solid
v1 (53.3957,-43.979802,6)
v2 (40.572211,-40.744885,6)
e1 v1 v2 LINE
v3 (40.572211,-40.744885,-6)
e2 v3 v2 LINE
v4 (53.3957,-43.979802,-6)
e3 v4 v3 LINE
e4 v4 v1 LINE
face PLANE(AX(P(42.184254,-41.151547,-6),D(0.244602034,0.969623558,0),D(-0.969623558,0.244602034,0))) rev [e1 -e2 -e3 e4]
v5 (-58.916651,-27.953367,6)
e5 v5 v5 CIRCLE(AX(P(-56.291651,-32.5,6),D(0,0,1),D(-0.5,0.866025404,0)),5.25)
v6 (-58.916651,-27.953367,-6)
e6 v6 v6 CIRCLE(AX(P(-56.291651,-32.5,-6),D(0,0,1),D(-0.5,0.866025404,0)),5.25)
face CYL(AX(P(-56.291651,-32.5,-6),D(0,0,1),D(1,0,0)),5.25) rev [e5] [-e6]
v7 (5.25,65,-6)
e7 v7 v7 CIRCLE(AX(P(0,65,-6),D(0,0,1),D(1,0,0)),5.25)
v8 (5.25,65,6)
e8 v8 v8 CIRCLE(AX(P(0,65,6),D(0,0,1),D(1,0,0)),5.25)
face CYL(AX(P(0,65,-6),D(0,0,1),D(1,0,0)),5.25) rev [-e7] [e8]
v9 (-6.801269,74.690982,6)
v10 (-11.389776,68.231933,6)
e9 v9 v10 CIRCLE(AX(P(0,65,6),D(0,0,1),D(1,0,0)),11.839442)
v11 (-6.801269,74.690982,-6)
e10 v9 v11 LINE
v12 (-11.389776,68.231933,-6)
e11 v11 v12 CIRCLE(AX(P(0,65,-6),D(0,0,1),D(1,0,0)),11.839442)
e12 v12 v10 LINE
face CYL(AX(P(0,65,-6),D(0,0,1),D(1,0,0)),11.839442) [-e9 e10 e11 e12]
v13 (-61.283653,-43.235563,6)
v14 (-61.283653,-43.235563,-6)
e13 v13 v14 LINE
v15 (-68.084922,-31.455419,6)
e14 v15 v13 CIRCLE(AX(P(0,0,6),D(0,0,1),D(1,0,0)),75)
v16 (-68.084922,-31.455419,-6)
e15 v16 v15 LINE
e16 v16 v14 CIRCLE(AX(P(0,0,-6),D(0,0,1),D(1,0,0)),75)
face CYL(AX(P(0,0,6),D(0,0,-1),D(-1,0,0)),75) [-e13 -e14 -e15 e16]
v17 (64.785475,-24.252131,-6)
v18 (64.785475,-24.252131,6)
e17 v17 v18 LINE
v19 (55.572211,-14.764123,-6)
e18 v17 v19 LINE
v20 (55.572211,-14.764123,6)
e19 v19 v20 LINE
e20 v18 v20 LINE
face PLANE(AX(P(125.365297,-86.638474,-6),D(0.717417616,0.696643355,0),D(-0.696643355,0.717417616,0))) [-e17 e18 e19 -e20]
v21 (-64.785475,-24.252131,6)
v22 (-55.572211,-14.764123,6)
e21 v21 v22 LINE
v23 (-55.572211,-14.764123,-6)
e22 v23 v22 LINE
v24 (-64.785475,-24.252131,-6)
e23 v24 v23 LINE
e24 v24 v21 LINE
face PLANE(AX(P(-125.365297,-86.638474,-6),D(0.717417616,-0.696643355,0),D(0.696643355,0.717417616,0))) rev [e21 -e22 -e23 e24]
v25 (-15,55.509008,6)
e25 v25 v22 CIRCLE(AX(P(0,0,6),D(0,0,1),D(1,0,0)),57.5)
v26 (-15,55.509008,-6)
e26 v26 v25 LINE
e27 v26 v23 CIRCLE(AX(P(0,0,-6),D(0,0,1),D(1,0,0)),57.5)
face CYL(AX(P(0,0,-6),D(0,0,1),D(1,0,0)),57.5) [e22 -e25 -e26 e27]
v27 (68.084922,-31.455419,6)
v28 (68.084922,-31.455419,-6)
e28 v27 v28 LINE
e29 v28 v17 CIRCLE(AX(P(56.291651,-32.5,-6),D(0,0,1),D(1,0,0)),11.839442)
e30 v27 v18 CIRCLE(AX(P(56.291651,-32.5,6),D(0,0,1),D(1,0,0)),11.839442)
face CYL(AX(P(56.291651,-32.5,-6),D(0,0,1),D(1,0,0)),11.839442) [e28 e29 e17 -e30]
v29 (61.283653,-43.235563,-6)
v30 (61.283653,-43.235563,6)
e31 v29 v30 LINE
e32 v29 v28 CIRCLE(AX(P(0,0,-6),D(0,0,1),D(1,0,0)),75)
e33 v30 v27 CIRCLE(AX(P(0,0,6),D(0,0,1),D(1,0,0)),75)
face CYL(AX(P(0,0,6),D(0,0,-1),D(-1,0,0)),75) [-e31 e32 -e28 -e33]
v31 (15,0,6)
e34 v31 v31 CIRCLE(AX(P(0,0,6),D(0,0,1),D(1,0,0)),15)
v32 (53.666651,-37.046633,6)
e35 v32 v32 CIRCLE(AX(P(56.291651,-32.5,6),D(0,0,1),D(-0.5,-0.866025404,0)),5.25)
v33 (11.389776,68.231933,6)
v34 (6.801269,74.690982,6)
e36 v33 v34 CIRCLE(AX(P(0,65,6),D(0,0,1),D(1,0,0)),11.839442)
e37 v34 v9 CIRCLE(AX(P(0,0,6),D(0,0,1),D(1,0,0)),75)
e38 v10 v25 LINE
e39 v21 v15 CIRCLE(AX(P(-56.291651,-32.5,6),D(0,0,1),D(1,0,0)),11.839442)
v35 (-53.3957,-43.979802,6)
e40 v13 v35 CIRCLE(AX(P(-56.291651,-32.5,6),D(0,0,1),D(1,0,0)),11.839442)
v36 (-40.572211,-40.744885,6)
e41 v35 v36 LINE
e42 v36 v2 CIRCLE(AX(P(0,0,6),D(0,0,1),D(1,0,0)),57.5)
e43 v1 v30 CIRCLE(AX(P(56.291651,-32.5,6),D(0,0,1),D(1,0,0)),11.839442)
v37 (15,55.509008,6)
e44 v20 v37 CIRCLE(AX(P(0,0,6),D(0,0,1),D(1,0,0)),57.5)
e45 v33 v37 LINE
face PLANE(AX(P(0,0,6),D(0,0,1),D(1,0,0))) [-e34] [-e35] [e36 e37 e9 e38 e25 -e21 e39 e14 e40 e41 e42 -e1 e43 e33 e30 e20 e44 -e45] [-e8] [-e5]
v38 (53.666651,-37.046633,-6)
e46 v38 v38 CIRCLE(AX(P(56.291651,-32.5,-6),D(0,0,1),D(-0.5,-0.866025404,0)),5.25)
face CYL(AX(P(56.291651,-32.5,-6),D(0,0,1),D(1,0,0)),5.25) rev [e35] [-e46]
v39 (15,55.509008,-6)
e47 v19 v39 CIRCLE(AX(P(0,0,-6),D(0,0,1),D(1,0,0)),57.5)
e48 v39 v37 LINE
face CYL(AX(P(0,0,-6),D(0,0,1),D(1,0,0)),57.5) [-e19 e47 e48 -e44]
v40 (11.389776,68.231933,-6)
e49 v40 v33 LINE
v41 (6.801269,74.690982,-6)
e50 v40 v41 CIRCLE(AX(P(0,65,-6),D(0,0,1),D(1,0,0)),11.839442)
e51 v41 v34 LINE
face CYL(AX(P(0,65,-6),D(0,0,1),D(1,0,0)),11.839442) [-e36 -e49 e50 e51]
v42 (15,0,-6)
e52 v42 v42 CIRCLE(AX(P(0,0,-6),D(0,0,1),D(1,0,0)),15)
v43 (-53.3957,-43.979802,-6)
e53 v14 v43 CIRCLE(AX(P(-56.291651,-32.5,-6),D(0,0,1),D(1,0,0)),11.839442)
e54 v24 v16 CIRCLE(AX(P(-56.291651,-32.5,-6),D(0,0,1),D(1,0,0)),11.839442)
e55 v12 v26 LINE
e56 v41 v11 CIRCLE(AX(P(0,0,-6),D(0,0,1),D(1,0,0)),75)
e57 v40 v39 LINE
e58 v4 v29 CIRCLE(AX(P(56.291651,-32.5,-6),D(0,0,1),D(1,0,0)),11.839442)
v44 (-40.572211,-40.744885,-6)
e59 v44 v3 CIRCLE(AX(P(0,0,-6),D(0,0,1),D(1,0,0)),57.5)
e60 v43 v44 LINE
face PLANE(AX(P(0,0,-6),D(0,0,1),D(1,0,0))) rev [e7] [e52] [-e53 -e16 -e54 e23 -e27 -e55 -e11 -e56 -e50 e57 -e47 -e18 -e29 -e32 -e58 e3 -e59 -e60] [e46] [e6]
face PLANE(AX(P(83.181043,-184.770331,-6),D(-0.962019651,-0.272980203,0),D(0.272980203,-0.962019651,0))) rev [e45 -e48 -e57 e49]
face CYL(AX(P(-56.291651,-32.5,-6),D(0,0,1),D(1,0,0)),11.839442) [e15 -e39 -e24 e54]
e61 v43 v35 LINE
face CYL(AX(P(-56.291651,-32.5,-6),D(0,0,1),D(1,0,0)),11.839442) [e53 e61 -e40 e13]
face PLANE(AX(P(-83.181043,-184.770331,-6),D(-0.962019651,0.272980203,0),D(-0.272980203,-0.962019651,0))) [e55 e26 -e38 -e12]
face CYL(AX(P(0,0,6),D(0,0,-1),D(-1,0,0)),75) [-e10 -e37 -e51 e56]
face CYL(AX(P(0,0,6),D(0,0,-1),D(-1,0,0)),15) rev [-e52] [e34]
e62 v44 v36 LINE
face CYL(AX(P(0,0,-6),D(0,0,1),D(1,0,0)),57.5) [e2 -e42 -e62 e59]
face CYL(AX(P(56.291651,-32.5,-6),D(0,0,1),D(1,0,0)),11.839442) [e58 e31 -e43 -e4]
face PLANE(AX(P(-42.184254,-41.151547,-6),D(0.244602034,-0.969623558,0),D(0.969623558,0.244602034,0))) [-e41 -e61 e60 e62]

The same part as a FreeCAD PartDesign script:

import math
import FreeCAD as App
import Part
import Sketcher
from FreeCAD import Vector

doc = App.newDocument("Part")
body = doc.addObject("PartDesign::Body", "Body")

# Sketch on XY plane
sketch1 = body.newObject("Sketcher::SketchObject", "Sketch")
sketch1.AttachmentSupport = (doc.getObject("XY_Plane"), [""])
sketch1.MapMode = "FlatFace"
sketch1.addGeometry([
    Part.Circle(Vector(0, 0, 0), Vector(0, 0, 1), 75),
    Part.Circle(Vector(0, 0, 0), Vector(0, 0, 1), 15),
], False)
sketch1.addConstraint([
    Sketcher.Constraint("Coincident", 0, 3, -1, 1),
    Sketcher.Constraint("Coincident", 1, 3, -1, 1),
    Sketcher.Constraint("Diameter", 0, 150.0),
    Sketcher.Constraint("Diameter", 1, 30.0),
])
pad1 = body.newObject("PartDesign::Pad", "Pad")
pad1.Profile = sketch1
pad1.Length = 12
pad1.Midplane = True

# Sketch on XY plane
sketch2 = body.newObject("Sketcher::SketchObject", "Sketch001")
sketch2.AttachmentSupport = (doc.getObject("XY_Plane"), [""])
sketch2.MapMode = "FlatFace"
sketch2.AttachmentOffset = App.Placement(Vector(0, 0, 6), App.Rotation())
sketch2.addGeometry(Part.Circle(Vector(0, 65, 0), Vector(0, 0, 1), 5.25), False)
sketch2.addConstraint([
    Sketcher.Constraint("PointOnObject", 0, 3, -2),
    Sketcher.Constraint("Diameter", 0, 10.5),
    Sketcher.Constraint("DistanceY", -1, 1, 0, 3, 65.0),
])
pocket1 = body.newObject("PartDesign::Pocket", "Pocket")
pocket1.Profile = sketch2
pocket1.Type = "ThroughAll"
doc.recompute()

polarpattern = body.newObject("PartDesign::PolarPattern", "PolarPattern")
polarpattern.Originals = [pocket1]
polarpattern.Axis = (doc.getObject("Z_Axis"), [""])
polarpattern.Angle = 360
polarpattern.Occurrences = 3
body.Tip = polarpattern

# Sketch on XY plane
sketch3 = body.newObject("Sketcher::SketchObject", "Sketch002")
sketch3.AttachmentSupport = (doc.getObject("XY_Plane"), [""])
sketch3.MapMode = "FlatFace"
sketch3.AttachmentOffset = App.Placement(Vector(0, 0, 6), App.Rotation())
sketch3.addGeometry([
    Part.Circle(Vector(0, 0, 0), Vector(0, 0, 1), 94.650976),  # 0
    Part.ArcOfCircle(Part.Circle(Vector(0, 0, 0), Vector(0, 0, 1), 75), math.radians(84.797066), math.radians(95.202934)),  # 1
    Part.ArcOfCircle(Part.Circle(Vector(0, 65, 0), Vector(0, 0, 1), 11.839442), math.radians(15.841684), math.radians(54.938275)),  # 2
    Part.LineSegment(Vector(11.389776, 68.231933, 0), Vector(15, 55.509008, 0)),  # 3
    Part.ArcOfCircle(Part.Circle(Vector(0, 0, 0), Vector(0, 0, 1), 57.5), math.radians(0), math.radians(74.878335)),  # 4
    Part.ArcOfCircle(Part.Circle(Vector(0, 0, 0), Vector(0, 0, 1), 57.5), math.radians(-14.878335), math.radians(0)),  # 5
    Part.LineSegment(Vector(55.572211, -14.764123, 0), Vector(64.785475, -24.252131, 0)),  # 6
    Part.ArcOfCircle(Part.Circle(Vector(56.291651, -32.5, 0), Vector(0, 0, 1), 11.839442), math.radians(5.061725), math.radians(44.158316)),  # 7
    Part.ArcOfCircle(Part.Circle(Vector(0, 0, 0), Vector(0, 0, 1), 75), math.radians(-35.202935), math.radians(-24.797066)),  # 8
    Part.ArcOfCircle(Part.Circle(Vector(56.291651, -32.5, 0), Vector(0, 0, 1), 11.839442), math.radians(-104.158316), math.radians(-65.061725)),  # 9
    Part.LineSegment(Vector(53.3957, -43.979802, 0), Vector(40.572211, -40.744885, 0)),  # 10
    Part.ArcOfCircle(Part.Circle(Vector(0, 0, 0), Vector(0, 0, 1), 57.5), math.radians(-134.878335), math.radians(-45.121665)),  # 11
    Part.LineSegment(Vector(-40.572211, -40.744885, 0), Vector(-53.3957, -43.979802, 0)),  # 12
    Part.ArcOfCircle(Part.Circle(Vector(-56.291651, -32.5, 0), Vector(0, 0, 1), 11.839442), math.radians(-114.938275), math.radians(-75.841684)),  # 13
    Part.ArcOfCircle(Part.Circle(Vector(0, 0, 0), Vector(0, 0, 1), 75), math.radians(-155.202934), math.radians(-144.797065)),  # 14
    Part.ArcOfCircle(Part.Circle(Vector(-56.291651, -32.5, 0), Vector(0, 0, 1), 11.839442), math.radians(135.841684), math.radians(174.938275)),  # 15
    Part.LineSegment(Vector(-64.785475, -24.252131, 0), Vector(-55.572211, -14.764123, 0)),  # 16
    Part.ArcOfCircle(Part.Circle(Vector(0, 0, 0), Vector(0, 0, 1), 57.5), math.radians(105.121665), math.radians(194.878335)),  # 17
    Part.LineSegment(Vector(-15, 55.509008, 0), Vector(-11.389776, 68.231933, 0)),  # 18
    Part.ArcOfCircle(Part.Circle(Vector(0, 65, 0), Vector(0, 0, 1), 11.839442), math.radians(125.061725), math.radians(164.158316)),  # 19
], False)
sketch3.addConstraint([
    Sketcher.Constraint("Coincident", 1, 1, 2, 2),
    Sketcher.Constraint("Tangent", 2, 1, 3, 1),
    Sketcher.Constraint("Coincident", 3, 2, 4, 2),
    Sketcher.Constraint("Tangent", 4, 1, 5, 2),
    Sketcher.Constraint("Coincident", 5, 1, 6, 1),
    Sketcher.Constraint("Tangent", 6, 2, 7, 2),
    Sketcher.Constraint("Coincident", 7, 1, 8, 2),
    Sketcher.Constraint("Coincident", 8, 1, 9, 2),
    Sketcher.Constraint("Tangent", 9, 1, 10, 1),
    Sketcher.Constraint("Coincident", 10, 2, 11, 2),
    Sketcher.Constraint("Coincident", 11, 1, 12, 1),
    Sketcher.Constraint("Tangent", 12, 2, 13, 2),
    Sketcher.Constraint("Coincident", 13, 1, 14, 2),
    Sketcher.Constraint("Coincident", 14, 1, 15, 2),
    Sketcher.Constraint("Tangent", 15, 1, 16, 1),
    Sketcher.Constraint("Coincident", 16, 2, 17, 2),
    Sketcher.Constraint("Coincident", 17, 1, 18, 1),
    Sketcher.Constraint("Tangent", 18, 2, 19, 2),
    Sketcher.Constraint("Coincident", 19, 1, 1, 2),
    Sketcher.Constraint("Coincident", 0, 3, -1, 1),
    Sketcher.Constraint("Coincident", 1, 3, -1, 1),
    Sketcher.Constraint("Coincident", 4, 3, -1, 1),
    Sketcher.Constraint("Coincident", 8, 3, -1, 1),
    Sketcher.Constraint("Coincident", 11, 3, -1, 1),
    Sketcher.Constraint("Coincident", 14, 3, -1, 1),
    Sketcher.Constraint("Coincident", 17, 3, -1, 1),
    Sketcher.Constraint("Coincident", 9, 3, 7, 3),
    Sketcher.Constraint("Coincident", 15, 3, 13, 3),
    Sketcher.Constraint("Coincident", 19, 3, 2, 3),
    Sketcher.Constraint("Equal", 4, 5),
    Sketcher.Constraint("Equal", 2, 7),
    Sketcher.Constraint("Equal", 1, 8),
    Sketcher.Constraint("Equal", 7, 9),
    Sketcher.Constraint("Equal", 5, 11),
    Sketcher.Constraint("Equal", 9, 13),
    Sketcher.Constraint("Equal", 8, 14),
    Sketcher.Constraint("Equal", 13, 15),
    Sketcher.Constraint("Equal", 11, 17),
    Sketcher.Constraint("Equal", 15, 19),
    Sketcher.Constraint("Symmetric", 7, 3, 13, 3, -2),
    Sketcher.Constraint("Symmetric", 2, 1, 18, 2, -2),
    Sketcher.Constraint("PointOnObject", 4, 1, -1),
    Sketcher.Constraint("Horizontal", 10, 2, 11, 1),
    Sketcher.Constraint("Horizontal", 6, 2, 15, 1),
    Sketcher.Constraint("Equal", 3, 6),
    Sketcher.Constraint("Equal", 6, 10),
    Sketcher.Constraint("Radius", 1, 75.0),
    Sketcher.Constraint("Radius", 4, 57.5),
    Sketcher.Constraint("DistanceY", -1, 1, 2, 3, 65.0),
    Sketcher.Constraint("DistanceX", -1, 1, 3, 2, 15.0),
    Sketcher.Constraint("DistanceY", 7, 3, -1, 1, 32.5),
    Sketcher.Constraint("Diameter", 0, 189.301952),
    Sketcher.Constraint("Radius", 2, 11.839442),
    Sketcher.Constraint("DistanceX", 9, 3, 8, 1, 4.992002),
])
pocket2 = body.newObject("PartDesign::Pocket", "Pocket001")
pocket2.Profile = sketch3
pocket2.Length = 107.742681

doc.recompute()
